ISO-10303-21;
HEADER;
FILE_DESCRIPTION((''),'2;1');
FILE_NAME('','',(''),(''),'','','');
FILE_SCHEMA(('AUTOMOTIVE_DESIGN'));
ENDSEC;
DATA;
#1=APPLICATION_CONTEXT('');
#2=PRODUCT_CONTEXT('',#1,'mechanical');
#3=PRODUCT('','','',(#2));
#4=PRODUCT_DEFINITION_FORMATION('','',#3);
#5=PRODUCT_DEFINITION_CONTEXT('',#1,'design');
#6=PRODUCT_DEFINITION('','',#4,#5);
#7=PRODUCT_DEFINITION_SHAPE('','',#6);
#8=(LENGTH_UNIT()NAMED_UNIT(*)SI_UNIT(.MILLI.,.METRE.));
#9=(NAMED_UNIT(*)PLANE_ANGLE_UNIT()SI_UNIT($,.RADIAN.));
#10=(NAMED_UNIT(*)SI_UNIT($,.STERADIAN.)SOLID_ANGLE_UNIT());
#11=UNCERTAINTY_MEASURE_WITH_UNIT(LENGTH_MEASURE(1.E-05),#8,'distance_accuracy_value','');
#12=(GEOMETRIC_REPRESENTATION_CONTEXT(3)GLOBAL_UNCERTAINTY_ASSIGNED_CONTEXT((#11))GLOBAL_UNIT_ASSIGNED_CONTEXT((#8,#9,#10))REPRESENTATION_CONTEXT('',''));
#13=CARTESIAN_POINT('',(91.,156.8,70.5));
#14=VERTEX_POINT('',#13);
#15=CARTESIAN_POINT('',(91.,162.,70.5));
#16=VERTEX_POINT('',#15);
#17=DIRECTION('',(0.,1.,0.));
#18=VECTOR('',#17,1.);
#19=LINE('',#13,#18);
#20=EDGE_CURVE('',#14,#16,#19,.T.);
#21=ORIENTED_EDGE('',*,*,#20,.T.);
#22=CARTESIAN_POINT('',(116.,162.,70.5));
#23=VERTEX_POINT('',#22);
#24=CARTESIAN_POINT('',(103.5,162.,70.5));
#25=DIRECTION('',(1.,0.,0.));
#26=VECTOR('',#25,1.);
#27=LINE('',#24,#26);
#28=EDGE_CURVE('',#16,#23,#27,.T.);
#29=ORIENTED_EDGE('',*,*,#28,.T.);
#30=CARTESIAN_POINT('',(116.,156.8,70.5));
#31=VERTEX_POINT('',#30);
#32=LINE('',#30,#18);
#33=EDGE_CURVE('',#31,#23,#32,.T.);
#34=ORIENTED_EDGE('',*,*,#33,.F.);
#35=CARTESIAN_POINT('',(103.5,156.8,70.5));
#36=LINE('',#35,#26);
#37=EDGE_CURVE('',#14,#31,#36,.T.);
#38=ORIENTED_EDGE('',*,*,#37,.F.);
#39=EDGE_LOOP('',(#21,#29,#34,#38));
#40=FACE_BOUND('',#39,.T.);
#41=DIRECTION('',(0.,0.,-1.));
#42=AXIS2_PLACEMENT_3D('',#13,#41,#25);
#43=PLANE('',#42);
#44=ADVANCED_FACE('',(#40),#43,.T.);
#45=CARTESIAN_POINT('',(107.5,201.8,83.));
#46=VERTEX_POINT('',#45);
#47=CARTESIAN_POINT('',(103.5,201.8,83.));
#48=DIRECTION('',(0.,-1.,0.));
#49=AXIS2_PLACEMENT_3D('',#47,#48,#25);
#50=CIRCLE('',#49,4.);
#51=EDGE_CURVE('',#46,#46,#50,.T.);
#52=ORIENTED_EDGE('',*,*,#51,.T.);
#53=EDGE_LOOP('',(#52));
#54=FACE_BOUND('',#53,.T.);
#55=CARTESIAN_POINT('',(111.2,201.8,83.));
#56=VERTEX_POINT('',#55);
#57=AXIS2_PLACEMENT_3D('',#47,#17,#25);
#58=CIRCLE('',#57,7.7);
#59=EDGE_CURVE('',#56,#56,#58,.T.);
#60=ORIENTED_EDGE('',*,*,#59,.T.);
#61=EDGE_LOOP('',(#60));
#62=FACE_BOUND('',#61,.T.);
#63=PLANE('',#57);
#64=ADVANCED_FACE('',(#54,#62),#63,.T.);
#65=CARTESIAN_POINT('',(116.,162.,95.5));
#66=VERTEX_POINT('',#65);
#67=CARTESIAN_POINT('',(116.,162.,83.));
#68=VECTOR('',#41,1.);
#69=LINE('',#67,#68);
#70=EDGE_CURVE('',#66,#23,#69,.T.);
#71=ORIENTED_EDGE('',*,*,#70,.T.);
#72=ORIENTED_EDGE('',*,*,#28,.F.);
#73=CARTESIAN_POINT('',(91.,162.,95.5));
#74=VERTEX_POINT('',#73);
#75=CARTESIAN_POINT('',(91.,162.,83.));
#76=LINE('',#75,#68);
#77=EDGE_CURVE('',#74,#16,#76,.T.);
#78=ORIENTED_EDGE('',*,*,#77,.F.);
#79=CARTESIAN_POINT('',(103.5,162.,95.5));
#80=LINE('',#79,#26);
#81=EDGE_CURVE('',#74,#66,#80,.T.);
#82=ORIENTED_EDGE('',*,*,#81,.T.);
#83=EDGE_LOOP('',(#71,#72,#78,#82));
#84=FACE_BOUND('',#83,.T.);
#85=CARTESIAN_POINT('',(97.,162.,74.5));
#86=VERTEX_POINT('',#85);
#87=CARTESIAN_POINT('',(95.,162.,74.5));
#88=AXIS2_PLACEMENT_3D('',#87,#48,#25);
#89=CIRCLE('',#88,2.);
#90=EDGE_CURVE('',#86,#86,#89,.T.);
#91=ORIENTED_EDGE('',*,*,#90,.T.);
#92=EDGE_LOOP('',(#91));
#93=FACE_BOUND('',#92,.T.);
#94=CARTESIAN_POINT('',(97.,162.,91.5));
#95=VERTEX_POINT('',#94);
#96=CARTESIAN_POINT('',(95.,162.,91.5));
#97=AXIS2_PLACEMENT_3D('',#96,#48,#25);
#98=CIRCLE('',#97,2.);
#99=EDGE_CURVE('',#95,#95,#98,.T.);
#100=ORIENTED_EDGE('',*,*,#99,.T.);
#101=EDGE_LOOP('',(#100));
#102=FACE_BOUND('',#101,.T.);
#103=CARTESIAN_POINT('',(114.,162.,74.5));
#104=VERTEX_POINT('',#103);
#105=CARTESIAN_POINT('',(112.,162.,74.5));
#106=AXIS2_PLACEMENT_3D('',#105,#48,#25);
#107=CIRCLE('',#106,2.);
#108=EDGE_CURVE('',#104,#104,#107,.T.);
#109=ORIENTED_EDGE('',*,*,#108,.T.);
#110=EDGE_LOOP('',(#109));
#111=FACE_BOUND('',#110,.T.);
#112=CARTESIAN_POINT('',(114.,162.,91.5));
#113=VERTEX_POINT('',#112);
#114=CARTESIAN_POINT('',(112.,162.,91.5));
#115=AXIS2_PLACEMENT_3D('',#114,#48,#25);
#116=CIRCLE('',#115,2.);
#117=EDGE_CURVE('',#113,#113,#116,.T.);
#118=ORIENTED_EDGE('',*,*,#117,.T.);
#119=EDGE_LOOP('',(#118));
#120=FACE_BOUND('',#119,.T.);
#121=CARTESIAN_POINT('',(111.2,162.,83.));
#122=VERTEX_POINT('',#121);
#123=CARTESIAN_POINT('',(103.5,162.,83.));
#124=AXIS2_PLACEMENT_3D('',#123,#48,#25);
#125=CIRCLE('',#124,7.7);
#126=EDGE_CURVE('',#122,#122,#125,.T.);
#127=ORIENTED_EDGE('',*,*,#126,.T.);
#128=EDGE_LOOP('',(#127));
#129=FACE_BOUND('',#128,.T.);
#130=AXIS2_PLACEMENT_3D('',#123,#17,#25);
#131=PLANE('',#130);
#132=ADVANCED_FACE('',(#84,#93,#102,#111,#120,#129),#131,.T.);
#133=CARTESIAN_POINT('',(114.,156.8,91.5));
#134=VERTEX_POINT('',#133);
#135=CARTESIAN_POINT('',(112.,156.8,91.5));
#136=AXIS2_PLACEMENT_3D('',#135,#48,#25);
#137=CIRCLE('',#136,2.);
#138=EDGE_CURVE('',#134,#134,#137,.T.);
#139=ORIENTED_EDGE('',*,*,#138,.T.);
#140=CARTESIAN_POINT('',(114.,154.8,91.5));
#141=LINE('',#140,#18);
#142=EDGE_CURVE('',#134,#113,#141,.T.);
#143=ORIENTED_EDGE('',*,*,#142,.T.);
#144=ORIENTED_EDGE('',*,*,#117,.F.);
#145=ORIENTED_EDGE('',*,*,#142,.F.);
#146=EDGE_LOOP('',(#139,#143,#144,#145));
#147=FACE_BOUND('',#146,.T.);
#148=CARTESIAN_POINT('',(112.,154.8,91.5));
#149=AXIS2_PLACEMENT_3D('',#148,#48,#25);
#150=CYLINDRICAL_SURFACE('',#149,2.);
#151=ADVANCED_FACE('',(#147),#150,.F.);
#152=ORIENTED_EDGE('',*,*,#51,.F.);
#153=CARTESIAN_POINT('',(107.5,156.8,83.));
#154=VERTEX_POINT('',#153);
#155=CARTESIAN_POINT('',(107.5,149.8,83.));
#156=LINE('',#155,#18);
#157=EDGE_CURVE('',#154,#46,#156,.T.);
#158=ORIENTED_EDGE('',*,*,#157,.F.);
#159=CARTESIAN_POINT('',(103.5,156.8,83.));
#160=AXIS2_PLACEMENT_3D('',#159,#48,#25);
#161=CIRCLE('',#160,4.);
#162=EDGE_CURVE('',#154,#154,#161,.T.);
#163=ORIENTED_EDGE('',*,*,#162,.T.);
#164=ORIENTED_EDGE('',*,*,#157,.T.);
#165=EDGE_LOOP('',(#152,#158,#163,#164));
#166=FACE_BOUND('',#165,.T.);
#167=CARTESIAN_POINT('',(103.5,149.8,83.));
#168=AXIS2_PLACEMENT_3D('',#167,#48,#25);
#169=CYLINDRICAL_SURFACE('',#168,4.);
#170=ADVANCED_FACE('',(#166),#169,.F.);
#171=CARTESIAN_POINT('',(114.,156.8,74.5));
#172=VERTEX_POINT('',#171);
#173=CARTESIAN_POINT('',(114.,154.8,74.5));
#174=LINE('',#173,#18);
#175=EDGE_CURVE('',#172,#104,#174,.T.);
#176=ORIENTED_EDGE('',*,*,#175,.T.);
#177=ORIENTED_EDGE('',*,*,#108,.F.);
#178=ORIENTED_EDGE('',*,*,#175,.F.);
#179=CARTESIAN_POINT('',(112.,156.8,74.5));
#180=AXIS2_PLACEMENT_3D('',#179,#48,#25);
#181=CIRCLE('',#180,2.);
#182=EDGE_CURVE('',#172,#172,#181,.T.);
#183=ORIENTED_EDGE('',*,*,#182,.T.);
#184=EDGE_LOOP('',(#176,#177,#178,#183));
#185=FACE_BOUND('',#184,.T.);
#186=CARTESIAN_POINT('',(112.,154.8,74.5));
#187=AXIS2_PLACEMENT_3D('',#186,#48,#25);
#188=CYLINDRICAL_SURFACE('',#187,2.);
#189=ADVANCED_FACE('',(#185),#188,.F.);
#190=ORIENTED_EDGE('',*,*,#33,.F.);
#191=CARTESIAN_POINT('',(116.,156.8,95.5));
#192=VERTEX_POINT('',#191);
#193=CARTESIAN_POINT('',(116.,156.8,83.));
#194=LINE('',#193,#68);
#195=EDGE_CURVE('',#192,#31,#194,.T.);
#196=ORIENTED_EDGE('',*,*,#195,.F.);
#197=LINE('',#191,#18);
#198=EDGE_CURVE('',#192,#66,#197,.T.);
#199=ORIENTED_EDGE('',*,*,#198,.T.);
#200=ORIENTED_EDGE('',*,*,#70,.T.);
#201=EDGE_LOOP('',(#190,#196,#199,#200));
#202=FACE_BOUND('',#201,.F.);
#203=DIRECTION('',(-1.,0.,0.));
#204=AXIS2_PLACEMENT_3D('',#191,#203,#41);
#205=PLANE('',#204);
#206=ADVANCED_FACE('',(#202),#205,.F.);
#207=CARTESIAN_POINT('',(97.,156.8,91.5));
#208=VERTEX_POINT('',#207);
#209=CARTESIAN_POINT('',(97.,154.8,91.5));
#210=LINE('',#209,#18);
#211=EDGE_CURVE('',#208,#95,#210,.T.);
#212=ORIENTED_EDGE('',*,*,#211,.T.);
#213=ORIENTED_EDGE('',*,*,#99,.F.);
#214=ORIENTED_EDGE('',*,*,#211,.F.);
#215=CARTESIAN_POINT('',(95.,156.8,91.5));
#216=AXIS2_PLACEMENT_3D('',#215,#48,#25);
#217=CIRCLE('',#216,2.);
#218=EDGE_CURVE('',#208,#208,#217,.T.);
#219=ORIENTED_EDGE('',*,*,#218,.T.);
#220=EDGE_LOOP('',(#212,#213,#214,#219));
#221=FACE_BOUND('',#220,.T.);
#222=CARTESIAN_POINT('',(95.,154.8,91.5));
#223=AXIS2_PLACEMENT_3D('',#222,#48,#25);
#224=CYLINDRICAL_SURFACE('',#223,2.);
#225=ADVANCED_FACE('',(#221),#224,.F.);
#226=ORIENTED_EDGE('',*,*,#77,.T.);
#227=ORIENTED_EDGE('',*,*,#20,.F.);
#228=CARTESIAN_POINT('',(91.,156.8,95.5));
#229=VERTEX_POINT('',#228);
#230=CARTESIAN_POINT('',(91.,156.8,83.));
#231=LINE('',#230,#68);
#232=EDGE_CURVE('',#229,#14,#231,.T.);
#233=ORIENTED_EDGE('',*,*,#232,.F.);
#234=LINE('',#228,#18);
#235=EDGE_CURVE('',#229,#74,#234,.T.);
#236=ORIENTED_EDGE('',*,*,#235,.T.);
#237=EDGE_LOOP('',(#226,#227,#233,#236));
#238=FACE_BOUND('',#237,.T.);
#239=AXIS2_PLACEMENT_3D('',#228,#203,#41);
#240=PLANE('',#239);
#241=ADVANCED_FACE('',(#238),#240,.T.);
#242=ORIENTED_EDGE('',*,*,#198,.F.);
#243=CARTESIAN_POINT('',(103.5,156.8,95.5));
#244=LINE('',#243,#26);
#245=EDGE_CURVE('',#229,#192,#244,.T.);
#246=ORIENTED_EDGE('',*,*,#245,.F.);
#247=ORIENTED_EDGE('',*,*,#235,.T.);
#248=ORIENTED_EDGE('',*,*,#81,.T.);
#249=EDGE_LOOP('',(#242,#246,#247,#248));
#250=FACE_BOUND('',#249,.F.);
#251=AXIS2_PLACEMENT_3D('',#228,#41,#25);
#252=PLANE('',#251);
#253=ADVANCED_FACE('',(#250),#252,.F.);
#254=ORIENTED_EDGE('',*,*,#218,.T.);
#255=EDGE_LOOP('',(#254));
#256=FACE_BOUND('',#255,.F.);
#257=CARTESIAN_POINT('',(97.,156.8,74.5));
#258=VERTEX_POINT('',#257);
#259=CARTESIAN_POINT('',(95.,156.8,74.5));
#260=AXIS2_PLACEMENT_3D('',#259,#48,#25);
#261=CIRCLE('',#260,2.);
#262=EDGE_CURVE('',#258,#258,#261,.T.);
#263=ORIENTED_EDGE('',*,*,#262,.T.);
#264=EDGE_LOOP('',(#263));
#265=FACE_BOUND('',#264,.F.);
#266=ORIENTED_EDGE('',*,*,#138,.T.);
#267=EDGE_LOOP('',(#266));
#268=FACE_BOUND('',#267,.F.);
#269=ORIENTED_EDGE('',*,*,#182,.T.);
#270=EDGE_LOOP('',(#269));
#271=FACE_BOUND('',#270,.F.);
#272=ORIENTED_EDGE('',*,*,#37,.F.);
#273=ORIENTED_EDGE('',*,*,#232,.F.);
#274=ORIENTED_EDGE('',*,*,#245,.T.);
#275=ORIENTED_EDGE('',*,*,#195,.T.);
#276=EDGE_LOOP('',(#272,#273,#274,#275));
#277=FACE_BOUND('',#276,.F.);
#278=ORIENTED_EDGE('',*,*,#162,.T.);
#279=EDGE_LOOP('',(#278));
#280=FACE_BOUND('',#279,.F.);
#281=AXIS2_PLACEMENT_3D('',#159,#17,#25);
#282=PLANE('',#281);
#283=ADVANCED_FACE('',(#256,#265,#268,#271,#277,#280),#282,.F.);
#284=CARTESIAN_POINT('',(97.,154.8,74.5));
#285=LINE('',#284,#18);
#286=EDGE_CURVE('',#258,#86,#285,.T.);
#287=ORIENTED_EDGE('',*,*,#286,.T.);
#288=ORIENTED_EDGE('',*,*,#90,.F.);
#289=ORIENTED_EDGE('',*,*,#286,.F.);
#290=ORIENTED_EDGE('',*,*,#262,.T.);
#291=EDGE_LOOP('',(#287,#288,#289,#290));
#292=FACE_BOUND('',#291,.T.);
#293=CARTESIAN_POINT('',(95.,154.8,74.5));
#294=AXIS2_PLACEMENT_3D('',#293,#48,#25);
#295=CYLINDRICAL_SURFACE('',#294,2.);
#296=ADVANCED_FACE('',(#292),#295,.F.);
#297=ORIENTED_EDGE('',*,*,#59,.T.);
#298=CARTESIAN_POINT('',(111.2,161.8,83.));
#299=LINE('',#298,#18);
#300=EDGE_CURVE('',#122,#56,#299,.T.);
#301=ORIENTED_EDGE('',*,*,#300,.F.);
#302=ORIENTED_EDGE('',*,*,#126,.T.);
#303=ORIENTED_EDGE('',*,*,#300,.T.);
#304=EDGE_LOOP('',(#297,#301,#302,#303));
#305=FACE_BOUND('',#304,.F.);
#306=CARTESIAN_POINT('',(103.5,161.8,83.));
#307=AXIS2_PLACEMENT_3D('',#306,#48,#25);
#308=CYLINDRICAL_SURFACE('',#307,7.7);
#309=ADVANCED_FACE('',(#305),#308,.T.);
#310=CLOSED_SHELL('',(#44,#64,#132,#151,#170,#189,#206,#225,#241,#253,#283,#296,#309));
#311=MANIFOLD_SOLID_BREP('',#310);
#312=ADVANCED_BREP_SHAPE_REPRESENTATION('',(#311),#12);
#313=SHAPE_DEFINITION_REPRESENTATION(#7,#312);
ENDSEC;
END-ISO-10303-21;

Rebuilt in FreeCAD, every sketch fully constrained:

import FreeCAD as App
import Part
import Sketcher


def add_polygon(sketch, points):
    """Adds a closed chain of lines whose ends are joined by coincident constraints."""
    first, n = sketch.GeometryCount, len(points)
    for a, b in zip(points, points[1:] + points[:1]):
        sketch.addGeometry(Part.LineSegment(App.Vector(*a, 0), App.Vector(*b, 0)), False)
    for i in range(n):
        sketch.addConstraint(Sketcher.Constraint("Coincident", first + i, 2, first + (i + 1) % n, 1))

doc = App.newDocument("Part")
body = doc.addObject("PartDesign::Body", "Body")

sketch1 = doc.addObject("Sketcher::SketchObject", "Sketch")
body.addObject(sketch1)
sketch1.AttachmentSupport = (doc.XY_Plane, [""])
sketch1.MapMode = "FlatFace"
sketch1.AttachmentOffset = App.Placement(App.Vector(0, 0, -2), App.Rotation())
sketch1.addGeometry(Part.Circle(App.Vector(21, 21, 0), App.Vector(0, 0, 1), 2), False)
sketch1.addConstraint(Sketcher.Constraint("Diameter", 0, 4.0))
sketch1.addConstraint(Sketcher.Constraint("DistanceX", -1, 1, 0, 3, 21.0))
sketch1.addConstraint(Sketcher.Constraint("DistanceY", -1, 1, 0, 3, 21.0))
pad1 = doc.addObject("PartDesign::Pad", "Pad")
body.addObject(pad1)
pad1.Profile = sketch1
pad1.Length = 10
body2 = doc.addObject("PartDesign::Body", "Body001")

sketch2 = doc.addObject("Sketcher::SketchObject", "Sketch001")
body2.addObject(sketch2)
sketch2.AttachmentSupport = (doc.getObject("XY_Plane001"), [""])
sketch2.MapMode = "FlatFace"
sketch2.AttachmentOffset = App.Placement(App.Vector(0, 0, -2), App.Rotation())
sketch2.addGeometry(Part.Circle(App.Vector(21, 4, 0), App.Vector(0, 0, 1), 2), False)
sketch2.addConstraint(Sketcher.Constraint("Diameter", 0, 4.0))
sketch2.addConstraint(Sketcher.Constraint("DistanceX", -1, 1, 0, 3, 21.0))
sketch2.addConstraint(Sketcher.Constraint("DistanceY", -1, 1, 0, 3, 4.0))
pad2 = doc.addObject("PartDesign::Pad", "Pad001")
body2.addObject(pad2)
pad2.Profile = sketch2
pad2.Length = 10
body3 = doc.addObject("PartDesign::Body", "Body002")

sketch3 = doc.addObject("Sketcher::SketchObject", "Sketch002")
body3.addObject(sketch3)
sketch3.AttachmentSupport = (doc.getObject("XY_Plane002"), [""])
sketch3.MapMode = "FlatFace"
sketch3.AttachmentOffset = App.Placement(App.Vector(0, 0, -2), App.Rotation())
sketch3.addGeometry(Part.Circle(App.Vector(4, 21, 0), App.Vector(0, 0, 1), 2), False)
sketch3.addConstraint(Sketcher.Constraint("Diameter", 0, 4.0))
sketch3.addConstraint(Sketcher.Constraint("DistanceX", -1, 1, 0, 3, 4.0))
sketch3.addConstraint(Sketcher.Constraint("DistanceY", -1, 1, 0, 3, 21.0))
pad3 = doc.addObject("PartDesign::Pad", "Pad002")
body3.addObject(pad3)
pad3.Profile = sketch3
pad3.Length = 10
body4 = doc.addObject("PartDesign::Body", "Body003")

sketch4 = doc.addObject("Sketcher::SketchObject", "Sketch003")
body4.addObject(sketch4)
sketch4.AttachmentSupport = (doc.getObject("XY_Plane003"), [""])
sketch4.MapMode = "FlatFace"
sketch4.AttachmentOffset = App.Placement(App.Vector(0, 0, -2), App.Rotation())
sketch4.addGeometry(Part.Circle(App.Vector(4, 4, 0), App.Vector(0, 0, 1), 2), False)
sketch4.addConstraint(Sketcher.Constraint("Diameter", 0, 4.0))
sketch4.addConstraint(Sketcher.Constraint("DistanceX", -1, 1, 0, 3, 4.0))
sketch4.addConstraint(Sketcher.Constraint("DistanceY", -1, 1, 0, 3, 4.0))
pad4 = doc.addObject("PartDesign::Pad", "Pad003")
body4.addObject(pad4)
pad4.Profile = sketch4
pad4.Length = 10
body5 = doc.addObject("PartDesign::Body", "Body004")

sketch5 = doc.addObject("Sketcher::SketchObject", "Sketch004")
body5.addObject(sketch5)
sketch5.AttachmentSupport = (doc.getObject("XY_Plane004"), [""])
sketch5.MapMode = "FlatFace"
sketch5.AttachmentOffset = App.Placement(App.Vector(0, 0, -7), App.Rotation())
sketch5.addGeometry(Part.Circle(App.Vector(12.5, 12.5, 0), App.Vector(0, 0, 1), 4), False)
sketch5.addConstraint(Sketcher.Constraint("Diameter", 0, 8.0))
sketch5.addConstraint(Sketcher.Constraint("DistanceX", -1, 1, 0, 3, 12.5))
sketch5.addConstraint(Sketcher.Constraint("DistanceY", -1, 1, 0, 3, 12.5))
pad5 = doc.addObject("PartDesign::Pad", "Pad004")
body5.addObject(pad5)
pad5.Profile = sketch5
pad5.Length = 60
body6 = doc.addObject("PartDesign::Body", "Body005")

sketch6 = doc.addObject("Sketcher::SketchObject", "Sketch005")
body6.addObject(sketch6)
sketch6.AttachmentSupport = (doc.getObject("XY_Plane005"), [""])
sketch6.MapMode = "FlatFace"
sketch6.AttachmentOffset = App.Placement(App.Vector(0, 0, 5), App.Rotation())
sketch6.addGeometry(Part.Circle(App.Vector(12, 12, 0), App.Vector(0, 0, 1), 8), False)
sketch6.addConstraint(Sketcher.Constraint("Diameter", 0, 15.4))
sketch6.addConstraint(Sketcher.Constraint("DistanceX", -1, 1, 0, 3, 12.5))
sketch6.addConstraint(Sketcher.Constraint("DistanceY", -1, 1, 0, 3, 12.5))
pad6 = doc.addObject("PartDesign::Pad", "Pad005")
body6.addObject(pad6)
pad6.Profile = sketch6
pad6.Length = 40
body7 = doc.addObject("PartDesign::Body", "Body006")

sketch7 = doc.addObject("Sketcher::SketchObject", "Sketch006")
body7.addObject(sketch7)
sketch7.AttachmentSupport = (doc.getObject("XY_Plane006"), [""])
sketch7.MapMode = "FlatFace"
add_polygon(sketch7, [(0, 25), (0, 0), (25, 0), (25, 25)])
sketch7.addConstraint(Sketcher.Constraint("Vertical", 0))
sketch7.addConstraint(Sketcher.Constraint("Horizontal", 1))
sketch7.addConstraint(Sketcher.Constraint("Vertical", 2))
sketch7.addConstraint(Sketcher.Constraint("Horizontal", 3))
sketch7.addConstraint(Sketcher.Constraint("Coincident", 0, 2, -1, 1))
sketch7.addConstraint(Sketcher.Constraint("Equal", 3, 0))
sketch7.addConstraint(Sketcher.Constraint("DistanceX", 1, 1, 1, 2, 25.0))
pad7 = doc.addObject("PartDesign::Pad", "Pad006")
body7.addObject(pad7)
pad7.Profile = sketch7
pad7.Length = 5.2
doc.recompute()

boolean = doc.addObject("PartDesign::Boolean", "Boolean")
body7.addObject(boolean)
boolean.Type = "Fuse"
boolean.addObjects([body6])
doc.recompute()

boolean2 = doc.addObject("PartDesign::Boolean", "Boolean001")
body7.addObject(boolean2)
boolean2.Type = "Cut"
boolean2.addObjects([body5])
doc.recompute()

boolean3 = doc.addObject("PartDesign::Boolean", "Boolean002")
body7.addObject(boolean3)
boolean3.Type = "Cut"
boolean3.addObjects([body4])
doc.recompute()

boolean4 = doc.addObject("PartDesign::Boolean", "Boolean003")
body7.addObject(boolean4)
boolean4.Type = "Cut"
boolean4.addObjects([body3])
doc.recompute()

boolean5 = doc.addObject("PartDesign::Boolean", "Boolean004")
body7.addObject(boolean5)
boolean5.Type = "Cut"
boolean5.addObjects([body2])
doc.recompute()

boolean6 = doc.addObject("PartDesign::Boolean", "Boolean005")
body7.addObject(boolean6)
boolean6.Type = "Cut"
boolean6.addObjects([body])
body8 = doc.addObject("PartDesign::Body", "Body007")
doc.recompute()

body7.Placement = App.Placement(App.Vector(91, 156.8, 95.5), App.Rotation(App.Vector(-1, 0, 0), 90))
boolean7 = doc.addObject("PartDesign::Boolean", "Boolean006")
body8.addObject(boolean7)
boolean7.Type = "Fuse"
boolean7.addObjects([body7])

doc.recompute()
